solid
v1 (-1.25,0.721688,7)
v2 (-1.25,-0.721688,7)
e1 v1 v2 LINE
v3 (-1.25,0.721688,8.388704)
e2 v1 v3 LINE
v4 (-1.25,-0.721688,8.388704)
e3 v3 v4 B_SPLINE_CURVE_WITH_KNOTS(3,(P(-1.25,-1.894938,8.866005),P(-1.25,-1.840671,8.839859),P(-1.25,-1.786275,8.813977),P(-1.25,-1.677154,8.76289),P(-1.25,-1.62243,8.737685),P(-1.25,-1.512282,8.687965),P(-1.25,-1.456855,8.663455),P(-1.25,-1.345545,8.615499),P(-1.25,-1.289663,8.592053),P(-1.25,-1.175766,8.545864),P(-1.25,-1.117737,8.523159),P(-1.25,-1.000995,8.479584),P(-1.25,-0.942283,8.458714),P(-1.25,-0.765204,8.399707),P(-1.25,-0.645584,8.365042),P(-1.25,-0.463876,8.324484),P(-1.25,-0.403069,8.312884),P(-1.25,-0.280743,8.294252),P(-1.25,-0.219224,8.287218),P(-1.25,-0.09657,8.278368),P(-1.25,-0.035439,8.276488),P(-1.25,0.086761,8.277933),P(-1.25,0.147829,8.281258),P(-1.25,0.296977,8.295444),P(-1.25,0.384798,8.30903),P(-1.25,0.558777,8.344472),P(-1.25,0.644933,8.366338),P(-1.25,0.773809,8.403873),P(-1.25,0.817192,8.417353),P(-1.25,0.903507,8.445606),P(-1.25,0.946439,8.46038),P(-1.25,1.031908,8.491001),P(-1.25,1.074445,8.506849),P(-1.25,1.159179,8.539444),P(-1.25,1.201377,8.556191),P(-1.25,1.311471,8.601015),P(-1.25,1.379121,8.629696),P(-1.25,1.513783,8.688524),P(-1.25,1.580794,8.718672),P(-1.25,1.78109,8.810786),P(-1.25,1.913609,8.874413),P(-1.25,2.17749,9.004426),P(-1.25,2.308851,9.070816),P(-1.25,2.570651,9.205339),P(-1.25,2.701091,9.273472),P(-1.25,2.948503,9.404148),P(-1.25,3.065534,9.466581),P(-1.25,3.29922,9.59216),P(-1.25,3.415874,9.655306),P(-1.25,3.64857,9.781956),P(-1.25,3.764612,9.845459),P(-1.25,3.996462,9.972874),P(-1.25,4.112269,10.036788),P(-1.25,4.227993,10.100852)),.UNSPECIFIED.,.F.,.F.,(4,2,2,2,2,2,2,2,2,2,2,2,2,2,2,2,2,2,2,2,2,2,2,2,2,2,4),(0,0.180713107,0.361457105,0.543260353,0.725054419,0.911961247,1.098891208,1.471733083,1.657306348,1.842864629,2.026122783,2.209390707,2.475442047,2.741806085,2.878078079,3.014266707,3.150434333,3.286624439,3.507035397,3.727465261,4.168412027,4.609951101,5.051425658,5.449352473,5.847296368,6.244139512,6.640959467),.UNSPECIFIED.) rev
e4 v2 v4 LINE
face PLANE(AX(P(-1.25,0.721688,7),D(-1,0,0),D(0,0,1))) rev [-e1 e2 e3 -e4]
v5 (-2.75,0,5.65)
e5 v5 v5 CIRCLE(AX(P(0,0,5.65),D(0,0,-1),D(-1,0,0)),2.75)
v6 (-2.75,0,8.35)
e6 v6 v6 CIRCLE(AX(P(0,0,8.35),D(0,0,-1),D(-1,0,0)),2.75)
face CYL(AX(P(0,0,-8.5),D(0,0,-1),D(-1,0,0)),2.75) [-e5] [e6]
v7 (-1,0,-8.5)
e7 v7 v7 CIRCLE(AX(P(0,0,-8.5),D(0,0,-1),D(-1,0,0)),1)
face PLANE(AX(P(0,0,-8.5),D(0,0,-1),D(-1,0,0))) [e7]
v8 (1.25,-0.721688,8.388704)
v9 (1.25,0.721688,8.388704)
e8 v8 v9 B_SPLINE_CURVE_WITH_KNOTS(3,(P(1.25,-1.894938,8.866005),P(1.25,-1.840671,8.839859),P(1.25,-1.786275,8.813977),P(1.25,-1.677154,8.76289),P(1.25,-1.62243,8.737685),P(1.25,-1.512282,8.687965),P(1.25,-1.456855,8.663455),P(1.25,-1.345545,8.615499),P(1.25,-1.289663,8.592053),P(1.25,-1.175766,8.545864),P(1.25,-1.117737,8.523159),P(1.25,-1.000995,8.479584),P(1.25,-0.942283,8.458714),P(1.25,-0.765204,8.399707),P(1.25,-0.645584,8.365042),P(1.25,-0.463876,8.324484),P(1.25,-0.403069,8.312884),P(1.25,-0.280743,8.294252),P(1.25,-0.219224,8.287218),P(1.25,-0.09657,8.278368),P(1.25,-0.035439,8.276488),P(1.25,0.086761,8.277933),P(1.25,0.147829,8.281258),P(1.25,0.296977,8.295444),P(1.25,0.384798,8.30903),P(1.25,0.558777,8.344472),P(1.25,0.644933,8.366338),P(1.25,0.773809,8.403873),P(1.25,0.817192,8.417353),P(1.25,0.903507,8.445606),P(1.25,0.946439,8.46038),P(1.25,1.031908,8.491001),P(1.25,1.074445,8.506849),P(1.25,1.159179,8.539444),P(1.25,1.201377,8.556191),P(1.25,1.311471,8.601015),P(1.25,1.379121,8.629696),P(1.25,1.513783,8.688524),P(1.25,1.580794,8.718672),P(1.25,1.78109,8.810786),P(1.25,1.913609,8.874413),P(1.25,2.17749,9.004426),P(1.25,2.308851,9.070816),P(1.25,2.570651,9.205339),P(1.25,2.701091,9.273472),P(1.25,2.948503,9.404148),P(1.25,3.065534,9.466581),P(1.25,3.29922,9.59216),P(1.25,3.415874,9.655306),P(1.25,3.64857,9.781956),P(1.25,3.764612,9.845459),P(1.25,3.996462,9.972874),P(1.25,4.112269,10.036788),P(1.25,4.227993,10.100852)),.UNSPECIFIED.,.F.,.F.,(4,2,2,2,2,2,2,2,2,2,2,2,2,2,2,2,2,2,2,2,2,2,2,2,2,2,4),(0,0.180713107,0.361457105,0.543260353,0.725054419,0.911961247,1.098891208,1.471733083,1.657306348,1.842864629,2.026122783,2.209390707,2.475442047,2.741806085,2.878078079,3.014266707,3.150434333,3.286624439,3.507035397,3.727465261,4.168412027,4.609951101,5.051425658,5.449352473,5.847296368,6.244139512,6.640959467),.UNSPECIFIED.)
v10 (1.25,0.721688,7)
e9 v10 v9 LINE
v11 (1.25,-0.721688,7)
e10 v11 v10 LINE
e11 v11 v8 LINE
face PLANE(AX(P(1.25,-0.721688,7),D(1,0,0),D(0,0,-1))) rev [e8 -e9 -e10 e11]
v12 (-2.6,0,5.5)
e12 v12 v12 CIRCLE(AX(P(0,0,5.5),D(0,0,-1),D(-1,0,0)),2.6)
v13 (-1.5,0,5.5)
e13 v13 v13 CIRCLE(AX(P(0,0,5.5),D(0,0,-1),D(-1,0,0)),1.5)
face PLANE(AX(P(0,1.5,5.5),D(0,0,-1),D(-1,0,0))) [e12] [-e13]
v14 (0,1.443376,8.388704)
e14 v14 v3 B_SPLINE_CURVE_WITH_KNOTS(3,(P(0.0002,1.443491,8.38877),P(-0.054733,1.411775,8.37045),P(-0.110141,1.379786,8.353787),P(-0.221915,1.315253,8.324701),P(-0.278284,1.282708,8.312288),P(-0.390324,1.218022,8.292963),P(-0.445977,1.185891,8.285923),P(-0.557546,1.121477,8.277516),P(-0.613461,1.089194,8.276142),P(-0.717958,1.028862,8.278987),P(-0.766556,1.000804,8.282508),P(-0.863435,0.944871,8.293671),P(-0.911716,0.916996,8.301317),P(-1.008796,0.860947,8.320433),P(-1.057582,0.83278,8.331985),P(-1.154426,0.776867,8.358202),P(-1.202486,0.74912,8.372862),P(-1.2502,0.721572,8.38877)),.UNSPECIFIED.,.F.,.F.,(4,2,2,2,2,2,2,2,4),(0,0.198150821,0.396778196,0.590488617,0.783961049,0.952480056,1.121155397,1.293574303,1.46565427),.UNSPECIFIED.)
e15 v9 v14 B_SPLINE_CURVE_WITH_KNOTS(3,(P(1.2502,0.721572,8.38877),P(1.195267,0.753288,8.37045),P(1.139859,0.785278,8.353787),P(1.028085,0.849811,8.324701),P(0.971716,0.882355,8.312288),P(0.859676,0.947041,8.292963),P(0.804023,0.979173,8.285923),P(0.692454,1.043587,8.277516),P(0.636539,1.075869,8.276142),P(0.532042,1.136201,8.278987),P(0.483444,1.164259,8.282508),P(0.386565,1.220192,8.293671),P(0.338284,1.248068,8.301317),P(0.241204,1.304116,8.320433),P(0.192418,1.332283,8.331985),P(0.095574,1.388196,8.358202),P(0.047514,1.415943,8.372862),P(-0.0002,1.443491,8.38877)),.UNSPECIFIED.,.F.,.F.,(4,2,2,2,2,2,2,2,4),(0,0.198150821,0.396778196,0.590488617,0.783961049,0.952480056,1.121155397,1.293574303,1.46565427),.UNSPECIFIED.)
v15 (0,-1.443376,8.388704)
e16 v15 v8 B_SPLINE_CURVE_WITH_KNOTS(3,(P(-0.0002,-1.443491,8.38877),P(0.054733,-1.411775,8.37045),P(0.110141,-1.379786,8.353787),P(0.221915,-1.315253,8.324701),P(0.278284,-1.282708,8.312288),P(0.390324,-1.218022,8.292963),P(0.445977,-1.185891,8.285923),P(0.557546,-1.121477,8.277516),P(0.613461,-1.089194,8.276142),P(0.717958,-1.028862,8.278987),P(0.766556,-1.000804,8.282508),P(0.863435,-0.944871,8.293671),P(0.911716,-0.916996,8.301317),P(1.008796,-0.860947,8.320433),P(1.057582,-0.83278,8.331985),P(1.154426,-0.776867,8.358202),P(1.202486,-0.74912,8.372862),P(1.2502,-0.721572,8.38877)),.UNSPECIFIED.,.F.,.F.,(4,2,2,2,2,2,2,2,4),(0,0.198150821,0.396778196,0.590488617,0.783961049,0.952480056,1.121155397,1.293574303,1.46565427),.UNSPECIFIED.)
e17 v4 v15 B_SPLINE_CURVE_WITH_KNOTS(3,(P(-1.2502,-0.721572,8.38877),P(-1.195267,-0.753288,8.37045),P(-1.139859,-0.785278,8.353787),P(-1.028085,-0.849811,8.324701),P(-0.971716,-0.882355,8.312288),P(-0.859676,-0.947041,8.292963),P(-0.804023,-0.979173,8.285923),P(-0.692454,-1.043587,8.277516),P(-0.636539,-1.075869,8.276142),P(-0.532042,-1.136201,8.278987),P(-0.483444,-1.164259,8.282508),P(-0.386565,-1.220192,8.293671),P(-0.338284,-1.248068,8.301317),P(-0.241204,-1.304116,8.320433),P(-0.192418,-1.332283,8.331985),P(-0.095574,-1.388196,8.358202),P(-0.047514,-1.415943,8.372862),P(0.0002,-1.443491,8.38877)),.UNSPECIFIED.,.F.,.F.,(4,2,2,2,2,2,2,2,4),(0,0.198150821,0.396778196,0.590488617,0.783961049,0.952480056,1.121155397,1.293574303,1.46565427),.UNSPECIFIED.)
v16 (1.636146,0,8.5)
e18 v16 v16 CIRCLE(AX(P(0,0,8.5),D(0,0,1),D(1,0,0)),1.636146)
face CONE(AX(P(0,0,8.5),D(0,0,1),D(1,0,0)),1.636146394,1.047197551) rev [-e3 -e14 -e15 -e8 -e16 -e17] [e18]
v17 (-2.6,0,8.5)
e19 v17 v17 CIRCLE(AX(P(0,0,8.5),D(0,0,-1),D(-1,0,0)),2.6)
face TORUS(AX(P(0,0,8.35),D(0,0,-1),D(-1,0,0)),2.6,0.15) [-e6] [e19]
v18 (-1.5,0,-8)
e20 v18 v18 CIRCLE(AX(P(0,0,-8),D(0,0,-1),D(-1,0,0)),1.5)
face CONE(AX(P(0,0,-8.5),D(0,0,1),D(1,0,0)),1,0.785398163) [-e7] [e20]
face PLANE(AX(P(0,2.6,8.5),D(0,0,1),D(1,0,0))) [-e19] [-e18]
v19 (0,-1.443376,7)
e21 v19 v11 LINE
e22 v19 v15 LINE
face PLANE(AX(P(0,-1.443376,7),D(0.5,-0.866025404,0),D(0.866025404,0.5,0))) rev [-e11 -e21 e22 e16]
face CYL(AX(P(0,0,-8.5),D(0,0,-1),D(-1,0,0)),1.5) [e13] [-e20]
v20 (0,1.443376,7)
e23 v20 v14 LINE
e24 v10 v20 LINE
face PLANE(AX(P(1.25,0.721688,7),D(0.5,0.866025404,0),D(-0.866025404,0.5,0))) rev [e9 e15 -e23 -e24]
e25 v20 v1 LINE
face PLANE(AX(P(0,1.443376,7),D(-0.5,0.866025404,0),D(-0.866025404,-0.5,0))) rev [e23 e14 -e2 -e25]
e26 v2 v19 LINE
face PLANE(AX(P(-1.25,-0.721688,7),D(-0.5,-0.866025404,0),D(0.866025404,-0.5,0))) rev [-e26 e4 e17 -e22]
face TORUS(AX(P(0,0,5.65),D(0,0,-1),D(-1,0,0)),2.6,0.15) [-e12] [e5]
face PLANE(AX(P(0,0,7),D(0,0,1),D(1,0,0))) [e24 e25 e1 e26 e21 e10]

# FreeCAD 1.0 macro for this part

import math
import FreeCAD as App
import Part
import Sketcher

V = App.Vector
Q = App.Units.Quantity


def add_polygon(sketch, points):
    """Adds a closed chain of lines whose ends are joined by coincident constraints."""
    first, n = sketch.GeometryCount, len(points)
    for a, b in zip(points, points[1:] + points[:1]):
        sketch.addGeometry(Part.LineSegment(App.Vector(*a, 0), App.Vector(*b, 0)), False)
    for i in range(n):
        sketch.addConstraint(Sketcher.Constraint("Coincident", first + i, 2, first + (i + 1) % n, 1))

doc = App.newDocument("Part")
body = doc.addObject("PartDesign::Body", "Body")

# Sketch on YZ plane
sketch1 = body.newObject("Sketcher::SketchObject", "Sketch")
sketch1.AttachmentSupport = (doc.getObject("YZ_Plane"), [""])
sketch1.MapMode = "FlatFace"
sketch1.addGeometry(Part.LineSegment(V(0, -8.5, 0), V(1, -8.5, 0)), False)
sketch1.addGeometry(Part.LineSegment(V(1, -8.5, 0), V(1.5, -8, 0)), False)
sketch1.addGeometry(Part.LineSegment(V(1.5, -8, 0), V(1.5, 5.5, 0)), False)
sketch1.addGeometry(Part.LineSegment(V(1.5, 5.5, 0), V(2.6, 5.5, 0)), False)
sketch1.addGeometry(Part.ArcOfCircle(Part.Circle(V(2.6, 5.65, 0), V(0, 0, 1), 0.15), math.radians(-90), math.radians(0)), False)
sketch1.addGeometry(Part.LineSegment(V(2.75, 5.65, 0), V(2.75, 8.35, 0)), False)
sketch1.addGeometry(Part.ArcOfCircle(Part.Circle(V(2.6, 8.35, 0), V(0, 0, 1), 0.15), math.radians(0), math.radians(90)), False)
sketch1.addGeometry(Part.LineSegment(V(2.6, 8.5, 0), V(0, 8.5, 0)), False)
sketch1.addGeometry(Part.LineSegment(V(0, 8.5, 0), V(0, -8.5, 0)), False)
sketch1.addConstraint(Sketcher.Constraint("Coincident", 0, 2, 1, 1))
sketch1.addConstraint(Sketcher.Constraint("Coincident", 1, 2, 2, 1))
sketch1.addConstraint(Sketcher.Constraint("Coincident", 2, 2, 3, 1))
sketch1.addConstraint(Sketcher.Constraint("Tangent", 3, 2, 4, 1))
sketch1.addConstraint(Sketcher.Constraint("Tangent", 4, 2, 5, 1))
sketch1.addConstraint(Sketcher.Constraint("Tangent", 5, 2, 6, 1))
sketch1.addConstraint(Sketcher.Constraint("Tangent", 6, 2, 7, 1))
sketch1.addConstraint(Sketcher.Constraint("Coincident", 7, 2, 8, 1))
sketch1.addConstraint(Sketcher.Constraint("Coincident", 8, 2, 0, 1))
sketch1.addConstraint(Sketcher.Constraint("Horizontal", 0))
sketch1.addConstraint(Sketcher.Constraint("Vertical", 2))
sketch1.addConstraint(Sketcher.Constraint("Horizontal", 3))
sketch1.addConstraint(Sketcher.Constraint("Vertical", 5))
sketch1.addConstraint(Sketcher.Constraint("Horizontal", 7))
sketch1.addConstraint(Sketcher.Constraint("Vertical", 8))
sketch1.addConstraint(Sketcher.Constraint("Equal", 4, 6))
sketch1.addConstraint(Sketcher.Constraint("Symmetric", 7, 2, 8, 2, -1, 1))
sketch1.addConstraint(Sketcher.Constraint("DistanceX", 0, 1, 0, 2, Q("1 mm")))
sketch1.addConstraint(Sketcher.Constraint("DistanceY", 8, 2, 8, 1, Q("17 mm")))
sketch1.addConstraint(Sketcher.Constraint("Angle", 1, Q("45 deg")))
sketch1.addConstraint(Sketcher.Constraint("Radius", 4, Q("0.15 mm")))
sketch1.addConstraint(Sketcher.Constraint("DistanceX", 3, 1, 3, 2, Q("1.1 mm")))
sketch1.addConstraint(Sketcher.Constraint("DistanceX", 7, 2, 7, 1, Q("2.6 mm")))
sketch1.addConstraint(Sketcher.Constraint("DistanceY", 2, 1, 2, 2, Q("13.5 mm")))
revolution = body.newObject("PartDesign::Revolution", "Revolution")
revolution.Profile = sketch1
revolution.ReferenceAxis = (sketch1, ["V_Axis"])
revolution.Angle = 360

# Sketch on XY plane
sketch2 = body.newObject("Sketcher::SketchObject", "Sketch001")
sketch2.AttachmentSupport = (doc.getObject("XY_Plane"), [""])
sketch2.MapMode = "FlatFace"
sketch2.AttachmentOffset = App.Placement(V(0, 0, 8.5), App.Rotation())
add_polygon(sketch2, [(-1.2, 0.7), (-1.2, -0.7), (0, -1.4), (1.2, -0.7), (1.2, 0.7), (0, 1.4)])  # lines 0-5
sketch2.addConstraint(Sketcher.Constraint("Vertical", 0))
sketch2.addConstraint(Sketcher.Constraint("Vertical", 3))
sketch2.addConstraint(Sketcher.Constraint("Symmetric", 0, 2, 3, 2, -1, 1))
sketch2.addConstraint(Sketcher.Constraint("Symmetric", 1, 2, 4, 2, -1, 1))
sketch2.addConstraint(Sketcher.Constraint("PointOnObject", 1, 2, -2))
sketch2.addConstraint(Sketcher.Constraint("Parallel", 2, 5))
sketch2.addConstraint(Sketcher.Constraint("Horizontal", 0, 2, 2, 2))
sketch2.addConstraint(Sketcher.Constraint("Angle", 1, Q("-30 deg")))
sketch2.addConstraint(Sketcher.Constraint("DistanceX", 0, 2, 2, 2, Q("2.5 mm")))
sketch2.addConstraint(Sketcher.Constraint("DistanceY", 0, 2, 0, 1, Q("1.443376 mm")))
pocket1 = body.newObject("PartDesign::Pocket", "Pocket")
pocket1.Profile = sketch2
pocket1.Length = 1.5

# Sketch on YZ plane
sketch3 = body.newObject("Sketcher::SketchObject", "Sketch002")
sketch3.AttachmentSupport = (doc.getObject("YZ_Plane"), [""])
sketch3.MapMode = "FlatFace"
add_polygon(sketch3, [(0, 8.5), (-1.6, 8.5), (0, 7.6)])  # lines 0-2
sketch3.addConstraint(Sketcher.Constraint("Horizontal", 0))
sketch3.addConstraint(Sketcher.Constraint("Vertical", 2))
sketch3.addConstraint(Sketcher.Constraint("PointOnObject", 1, 2, -2))
sketch3.addConstraint(Sketcher.Constraint("Angle", 1, Q("-30 deg")))
sketch3.addConstraint(Sketcher.Constraint("DistanceY", -1, 1, 0, 2, Q("8.5 mm")))
sketch3.addConstraint(Sketcher.Constraint("DistanceY", 2, 1, 2, 2, Q("0.94463 mm")))
groove = body.newObject("PartDesign::Groove", "Groove")
groove.Profile = sketch3
groove.ReferenceAxis = (sketch3, ["V_Axis"])
groove.Angle = 360

doc.recompute()
